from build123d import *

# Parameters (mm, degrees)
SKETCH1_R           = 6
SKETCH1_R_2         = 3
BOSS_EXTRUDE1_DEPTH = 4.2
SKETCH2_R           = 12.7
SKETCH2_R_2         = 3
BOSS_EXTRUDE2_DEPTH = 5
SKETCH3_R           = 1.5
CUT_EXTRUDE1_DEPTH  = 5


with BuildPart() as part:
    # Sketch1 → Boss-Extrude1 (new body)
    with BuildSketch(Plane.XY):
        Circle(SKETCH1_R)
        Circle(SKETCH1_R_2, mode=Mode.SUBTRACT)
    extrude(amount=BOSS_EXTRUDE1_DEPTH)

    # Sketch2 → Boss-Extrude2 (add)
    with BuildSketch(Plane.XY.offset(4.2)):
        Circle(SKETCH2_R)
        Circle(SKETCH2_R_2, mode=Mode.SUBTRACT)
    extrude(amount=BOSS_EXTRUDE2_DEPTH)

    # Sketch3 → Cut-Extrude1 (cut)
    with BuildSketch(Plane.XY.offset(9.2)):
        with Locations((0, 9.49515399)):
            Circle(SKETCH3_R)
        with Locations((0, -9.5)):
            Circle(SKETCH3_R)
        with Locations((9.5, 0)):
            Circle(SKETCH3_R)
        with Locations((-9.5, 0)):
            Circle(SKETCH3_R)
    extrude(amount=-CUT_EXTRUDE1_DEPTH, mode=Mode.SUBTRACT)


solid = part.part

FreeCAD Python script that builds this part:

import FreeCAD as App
import Part
import Sketcher

V = App.Vector

doc = App.newDocument("Part")
body = doc.addObject("PartDesign::Body", "Body")

# Sketch on XY plane
sketch1 = body.newObject("Sketcher::SketchObject", "Sketch")
sketch1.AttachmentSupport = (doc.getObject("XY_Plane"), [""])
sketch1.MapMode = "FlatFace"
sketch1.addGeometry([
    Part.Circle(V(0, 0, 0), V(0, 0, 1), 6),
    Part.Circle(V(0, 0, 0), V(0, 0, 1), 3),
], False)
sketch1.addConstraint([
    Sketcher.Constraint("Coincident", 0, 3, -1, 1),
    Sketcher.Constraint("Coincident", 1, 3, -1, 1),
    Sketcher.Constraint("Diameter", 0, 12.0),
    Sketcher.Constraint("Diameter", 1, 6.0),
])
pad1 = body.newObject("PartDesign::Pad", "Pad")
pad1.Profile = sketch1
pad1.Length = 4.2

# Sketch on XY plane
sketch2 = body.newObject("Sketcher::SketchObject", "Sketch001")
sketch2.AttachmentSupport = (doc.getObject("XY_Plane"), [""])
sketch2.MapMode = "FlatFace"
sketch2.AttachmentOffset = App.Placement(V(0, 0, 4.2), App.Rotation())
sketch2.addGeometry([
    Part.Circle(V(0, 0, 0), V(0, 0, 1), 12.7),
    Part.Circle(V(0, 0, 0), V(0, 0, 1), 3),
], False)
sketch2.addConstraint([
    Sketcher.Constraint("Coincident", 0, 3, -1, 1),
    Sketcher.Constraint("Coincident", 1, 3, -1, 1),
    Sketcher.Constraint("Diameter", 1, 6.0),
    Sketcher.Constraint("Diameter", 0, 25.4),
])
pad2 = body.newObject("PartDesign::Pad", "Pad001")
pad2.Profile = sketch2
pad2.Length = 5

# Sketch on XY plane
sketch3 = body.newObject("Sketcher::SketchObject", "Sketch002")
sketch3.AttachmentSupport = (doc.getObject("XY_Plane"), [""])
sketch3.MapMode = "FlatFace"
sketch3.AttachmentOffset = App.Placement(V(0, 0, 9.2), App.Rotation())
sketch3.addGeometry([
    Part.Circle(V(0, 9.5, 0), V(0, 0, 1), 1.5),
    Part.Circle(V(0, -9.5, 0), V(0, 0, 1), 1.5),
    Part.Circle(V(9.5, 0, 0), V(0, 0, 1), 1.5),
    Part.Circle(V(-9.5, 0, 0), V(0, 0, 1), 1.5),
], False)
sketch3.addConstraint([
    Sketcher.Constraint("Equal", 0, 1),
    Sketcher.Constraint("Equal", 1, 2),
    Sketcher.Constraint("Equal", 2, 3),
    Sketcher.Constraint("Symmetric", 2, 3, 3, 3, -1, 1),
    Sketcher.Constraint("PointOnObject", 0, 3, -2),
    Sketcher.Constraint("PointOnObject", 1, 3, -2),
    Sketcher.Constraint("PointOnObject", 2, 3, -1),
    Sketcher.Constraint("Diameter", 0, 3.0),
    Sketcher.Constraint("DistanceX", 3, 3, 2, 3, 19.0),
    Sketcher.Constraint("DistanceY", 1, 3, -1, 1, 9.5),
    Sketcher.Constraint("DistanceY", -1, 1, 0, 3, 9.495154),
])
pocket1 = body.newObject("PartDesign::Pocket", "Pocket")
pocket1.Profile = sketch3
pocket1.Length = 5

doc.recompute()
